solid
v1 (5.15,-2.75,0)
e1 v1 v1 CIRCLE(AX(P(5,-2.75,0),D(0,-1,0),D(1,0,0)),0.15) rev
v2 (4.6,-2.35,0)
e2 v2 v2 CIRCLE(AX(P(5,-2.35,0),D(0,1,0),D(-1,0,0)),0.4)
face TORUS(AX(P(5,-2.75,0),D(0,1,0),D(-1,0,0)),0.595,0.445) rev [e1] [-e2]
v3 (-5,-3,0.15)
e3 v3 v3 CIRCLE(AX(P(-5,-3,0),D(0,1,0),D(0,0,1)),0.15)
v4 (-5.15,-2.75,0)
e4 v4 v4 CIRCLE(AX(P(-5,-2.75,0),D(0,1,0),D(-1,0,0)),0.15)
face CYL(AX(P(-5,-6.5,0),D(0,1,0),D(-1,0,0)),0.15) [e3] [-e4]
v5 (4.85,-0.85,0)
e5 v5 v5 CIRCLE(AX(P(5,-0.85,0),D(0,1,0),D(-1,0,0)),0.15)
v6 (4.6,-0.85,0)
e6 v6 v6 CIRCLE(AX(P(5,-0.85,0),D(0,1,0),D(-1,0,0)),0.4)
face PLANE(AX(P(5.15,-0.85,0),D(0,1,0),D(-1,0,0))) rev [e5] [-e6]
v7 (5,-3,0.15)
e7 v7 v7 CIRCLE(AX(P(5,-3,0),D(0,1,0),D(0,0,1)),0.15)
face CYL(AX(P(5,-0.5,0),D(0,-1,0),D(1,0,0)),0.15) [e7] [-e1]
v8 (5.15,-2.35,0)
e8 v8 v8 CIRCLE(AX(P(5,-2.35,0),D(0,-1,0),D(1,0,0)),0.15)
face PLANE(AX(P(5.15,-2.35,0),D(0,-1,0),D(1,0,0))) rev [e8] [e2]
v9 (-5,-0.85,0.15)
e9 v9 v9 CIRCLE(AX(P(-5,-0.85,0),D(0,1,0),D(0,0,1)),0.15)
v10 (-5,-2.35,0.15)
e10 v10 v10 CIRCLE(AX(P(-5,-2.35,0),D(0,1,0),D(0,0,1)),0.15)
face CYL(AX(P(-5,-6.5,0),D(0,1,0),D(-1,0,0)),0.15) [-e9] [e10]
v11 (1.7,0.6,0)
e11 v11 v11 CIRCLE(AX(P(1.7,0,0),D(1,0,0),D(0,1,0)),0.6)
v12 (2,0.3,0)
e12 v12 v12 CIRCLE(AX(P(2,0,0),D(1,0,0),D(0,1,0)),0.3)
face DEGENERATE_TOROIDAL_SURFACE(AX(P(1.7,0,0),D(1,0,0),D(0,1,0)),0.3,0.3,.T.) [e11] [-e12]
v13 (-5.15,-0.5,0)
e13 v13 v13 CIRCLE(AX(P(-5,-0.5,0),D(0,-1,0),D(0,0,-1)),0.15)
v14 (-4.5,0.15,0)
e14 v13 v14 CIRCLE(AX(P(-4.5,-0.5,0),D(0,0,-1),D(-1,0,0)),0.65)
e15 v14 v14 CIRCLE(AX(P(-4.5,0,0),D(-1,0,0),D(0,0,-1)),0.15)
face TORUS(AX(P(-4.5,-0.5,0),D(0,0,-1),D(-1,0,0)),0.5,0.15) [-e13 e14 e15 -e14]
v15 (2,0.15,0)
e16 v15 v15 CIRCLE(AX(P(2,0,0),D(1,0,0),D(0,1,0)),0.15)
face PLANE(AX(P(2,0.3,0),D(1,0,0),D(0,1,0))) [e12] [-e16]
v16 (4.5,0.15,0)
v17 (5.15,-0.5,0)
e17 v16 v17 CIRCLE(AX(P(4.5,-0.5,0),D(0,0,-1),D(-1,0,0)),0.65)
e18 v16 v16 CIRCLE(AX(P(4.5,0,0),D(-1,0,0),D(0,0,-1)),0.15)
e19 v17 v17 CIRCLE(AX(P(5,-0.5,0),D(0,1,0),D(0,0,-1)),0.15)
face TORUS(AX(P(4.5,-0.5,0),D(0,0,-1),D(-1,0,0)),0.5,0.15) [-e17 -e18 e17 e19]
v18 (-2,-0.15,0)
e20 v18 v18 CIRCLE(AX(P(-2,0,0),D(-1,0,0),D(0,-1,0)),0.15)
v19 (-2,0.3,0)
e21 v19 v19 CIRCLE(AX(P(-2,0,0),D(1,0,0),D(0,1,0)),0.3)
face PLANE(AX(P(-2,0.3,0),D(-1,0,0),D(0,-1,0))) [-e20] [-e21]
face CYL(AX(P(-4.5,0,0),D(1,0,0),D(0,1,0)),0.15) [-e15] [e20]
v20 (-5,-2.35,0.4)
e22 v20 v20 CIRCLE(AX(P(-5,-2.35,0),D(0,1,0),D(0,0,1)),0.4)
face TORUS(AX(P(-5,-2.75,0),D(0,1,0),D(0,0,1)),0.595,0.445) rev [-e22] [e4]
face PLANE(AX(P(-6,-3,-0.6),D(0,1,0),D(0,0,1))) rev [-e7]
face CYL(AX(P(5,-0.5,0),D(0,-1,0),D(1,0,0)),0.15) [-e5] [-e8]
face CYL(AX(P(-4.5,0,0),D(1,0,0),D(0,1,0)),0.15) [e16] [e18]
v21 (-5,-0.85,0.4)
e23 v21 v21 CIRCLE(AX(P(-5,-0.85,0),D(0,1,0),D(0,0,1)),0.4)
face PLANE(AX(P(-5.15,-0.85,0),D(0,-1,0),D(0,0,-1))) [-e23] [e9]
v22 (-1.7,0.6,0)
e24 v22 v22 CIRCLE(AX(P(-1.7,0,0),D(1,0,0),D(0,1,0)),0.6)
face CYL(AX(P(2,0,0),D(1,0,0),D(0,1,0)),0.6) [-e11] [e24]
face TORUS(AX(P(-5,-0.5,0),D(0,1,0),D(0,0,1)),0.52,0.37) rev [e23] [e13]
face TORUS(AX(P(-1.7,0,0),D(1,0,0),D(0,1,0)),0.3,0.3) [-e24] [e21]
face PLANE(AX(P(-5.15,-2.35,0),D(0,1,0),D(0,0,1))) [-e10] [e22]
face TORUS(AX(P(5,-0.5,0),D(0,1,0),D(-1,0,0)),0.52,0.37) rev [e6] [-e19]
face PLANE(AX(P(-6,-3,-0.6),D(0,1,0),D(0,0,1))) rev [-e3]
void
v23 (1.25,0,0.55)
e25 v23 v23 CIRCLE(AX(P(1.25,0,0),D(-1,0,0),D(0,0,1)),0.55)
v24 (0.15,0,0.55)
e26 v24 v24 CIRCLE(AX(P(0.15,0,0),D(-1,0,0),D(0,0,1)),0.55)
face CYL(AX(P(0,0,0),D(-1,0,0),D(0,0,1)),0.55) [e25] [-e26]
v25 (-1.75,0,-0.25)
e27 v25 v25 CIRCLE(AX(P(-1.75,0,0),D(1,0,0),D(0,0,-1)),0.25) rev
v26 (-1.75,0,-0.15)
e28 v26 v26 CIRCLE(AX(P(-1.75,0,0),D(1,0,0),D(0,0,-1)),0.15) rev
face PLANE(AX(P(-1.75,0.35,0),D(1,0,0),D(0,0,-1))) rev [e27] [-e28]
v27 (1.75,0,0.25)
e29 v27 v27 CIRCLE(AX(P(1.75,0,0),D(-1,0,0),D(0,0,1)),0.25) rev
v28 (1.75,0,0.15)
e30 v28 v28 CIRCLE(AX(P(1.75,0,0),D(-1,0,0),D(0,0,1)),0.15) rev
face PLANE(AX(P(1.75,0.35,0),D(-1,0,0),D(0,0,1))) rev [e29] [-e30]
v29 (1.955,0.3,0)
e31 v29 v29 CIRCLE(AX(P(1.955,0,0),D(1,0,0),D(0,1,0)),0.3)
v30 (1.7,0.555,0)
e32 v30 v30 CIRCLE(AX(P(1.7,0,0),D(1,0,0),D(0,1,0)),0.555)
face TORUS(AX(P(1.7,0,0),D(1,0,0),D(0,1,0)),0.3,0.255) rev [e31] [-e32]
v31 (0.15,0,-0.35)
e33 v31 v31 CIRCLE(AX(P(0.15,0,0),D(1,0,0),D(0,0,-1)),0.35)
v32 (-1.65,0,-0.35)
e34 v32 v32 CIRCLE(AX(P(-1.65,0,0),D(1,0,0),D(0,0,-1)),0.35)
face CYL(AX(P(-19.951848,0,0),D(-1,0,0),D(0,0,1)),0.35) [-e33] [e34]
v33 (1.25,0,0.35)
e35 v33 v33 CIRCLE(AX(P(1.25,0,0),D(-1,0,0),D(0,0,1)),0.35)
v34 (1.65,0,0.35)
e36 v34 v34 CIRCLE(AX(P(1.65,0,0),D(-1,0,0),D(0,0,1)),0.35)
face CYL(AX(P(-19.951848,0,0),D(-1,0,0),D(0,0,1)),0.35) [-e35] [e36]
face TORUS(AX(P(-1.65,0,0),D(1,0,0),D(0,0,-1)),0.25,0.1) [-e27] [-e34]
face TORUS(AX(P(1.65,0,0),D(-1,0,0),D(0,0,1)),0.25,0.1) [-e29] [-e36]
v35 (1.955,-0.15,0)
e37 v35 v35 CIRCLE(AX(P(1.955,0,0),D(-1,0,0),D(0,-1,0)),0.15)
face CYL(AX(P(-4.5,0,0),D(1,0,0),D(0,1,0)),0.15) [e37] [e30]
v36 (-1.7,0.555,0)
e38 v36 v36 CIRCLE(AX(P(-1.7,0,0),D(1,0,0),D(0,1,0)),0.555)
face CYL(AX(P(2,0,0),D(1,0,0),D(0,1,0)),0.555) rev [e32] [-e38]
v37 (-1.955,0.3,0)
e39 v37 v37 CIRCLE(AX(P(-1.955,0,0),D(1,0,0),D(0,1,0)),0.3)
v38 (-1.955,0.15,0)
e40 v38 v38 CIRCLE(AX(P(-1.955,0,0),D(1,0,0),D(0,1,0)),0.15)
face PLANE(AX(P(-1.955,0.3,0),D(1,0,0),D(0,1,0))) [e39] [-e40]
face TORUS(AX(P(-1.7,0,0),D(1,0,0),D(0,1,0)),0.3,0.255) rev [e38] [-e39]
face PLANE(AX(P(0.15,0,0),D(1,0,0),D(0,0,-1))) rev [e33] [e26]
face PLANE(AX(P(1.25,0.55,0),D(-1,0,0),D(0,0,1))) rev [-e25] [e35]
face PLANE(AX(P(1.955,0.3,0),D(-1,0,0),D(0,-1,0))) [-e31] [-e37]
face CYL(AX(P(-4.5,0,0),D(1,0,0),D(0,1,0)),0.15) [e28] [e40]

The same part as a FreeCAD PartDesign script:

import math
import FreeCAD as App
import Part
import Sketcher
from FreeCAD import Vector


def edges_at(feature, points):
    """Names of the edges that pass closest to the given points."""
    edges = feature.Shape.Edges
    near = lambda p: min(range(len(edges)), key=lambda i: edges[i].distToShape(Part.Vertex(*p))[0])
    return sorted({f"Edge{near(p) + 1}" for p in points})

doc = App.newDocument("Part")
body = doc.addObject("PartDesign::Body", "Body")

sketch1 = body.newObject("Sketcher::SketchObject", "Sketch")
sketch1.AttachmentSupport = (doc.getObject("XY_Plane"), [""])
sketch1.MapMode = "FlatFace"
sketch1.addGeometry([
    Part.LineSegment(Vector(-1.75, 0.35, 0), Vector(-1.75, 0, 0)),
    Part.LineSegment(Vector(-1.75, 0, 0), Vector(1.75, 0, 0)),
    Part.LineSegment(Vector(1.75, 0, 0), Vector(1.75, 0.35, 0)),
    Part.LineSegment(Vector(1.75, 0.35, 0), Vector(-1.75, 0.35, 0)),
], False)
sketch1.addConstraint([
    Sketcher.Constraint("Coincident", 0, 2, 1, 1),
    Sketcher.Constraint("Coincident", 1, 2, 2, 1),
    Sketcher.Constraint("Coincident", 2, 2, 3, 1),
    Sketcher.Constraint("Coincident", 3, 2, 0, 1),
    Sketcher.Constraint("Vertical", 0),
    Sketcher.Constraint("Horizontal", 1),
    Sketcher.Constraint("Vertical", 2),
    Sketcher.Constraint("Horizontal", 3),
    Sketcher.Constraint("Symmetric", 0, 2, 1, 2, -1, 1),
    Sketcher.Constraint("DistanceX", 1, 1, 1, 2, 3.5),
    Sketcher.Constraint("DistanceY", 0, 2, 0, 1, 0.35),
])
revolution = body.newObject("PartDesign::Revolution", "Revolution")
revolution.Profile = sketch1
revolution.ReferenceAxis = (sketch1, ["H_Axis"])
revolution.Angle = 360
doc.recompute()

fillet = body.newObject("PartDesign::Fillet", "Fillet")
fillet.Base = (revolution, edges_at(revolution, [(1.75, 0, -0.35), (-1.75, 0, -0.35)]))
fillet.Radius = 0.1

sketch2 = body.newObject("Sketcher::SketchObject", "Sketch001")
sketch2.AttachmentSupport = (doc.getObject("XY_Plane"), [""])
sketch2.MapMode = "FlatFace"
sketch2.addGeometry([
    Part.LineSegment(Vector(0.1, 0.6, 0), Vector(0.1, 0, 0)),
    Part.LineSegment(Vector(0.1, 0, 0), Vector(1.2, 0, 0)),
    Part.LineSegment(Vector(1.2, 0, 0), Vector(1.2, 0.6, 0)),
    Part.LineSegment(Vector(1.2, 0.6, 0), Vector(0.1, 0.6, 0)),
], False)
sketch2.addConstraint([
    Sketcher.Constraint("Coincident", 0, 2, 1, 1),
    Sketcher.Constraint("Coincident", 1, 2, 2, 1),
    Sketcher.Constraint("Coincident", 2, 2, 3, 1),
    Sketcher.Constraint("Coincident", 3, 2, 0, 1),
    Sketcher.Constraint("Vertical", 0),
    Sketcher.Constraint("Horizontal", 1),
    Sketcher.Constraint("Vertical", 2),
    Sketcher.Constraint("Horizontal", 3),
    Sketcher.Constraint("PointOnObject", 0, 2, -1),
    Sketcher.Constraint("DistanceX", 1, 1, 1, 2, 1.1),
    Sketcher.Constraint("DistanceY", 0, 2, 0, 1, 0.55),
    Sketcher.Constraint("DistanceX", -1, 1, 0, 2, 0.15),
])
revolution2 = body.newObject("PartDesign::Revolution", "Revolution001")
revolution2.Profile = sketch2
revolution2.ReferenceAxis = (sketch2, ["H_Axis"])
revolution2.Angle = 360

sketch3 = body.newObject("Sketcher::SketchObject", "Sketch002")
sketch3.AttachmentSupport = (doc.getObject("YZ_Plane"), [""])
sketch3.MapMode = "FlatFace"
sketch3.addGeometry(Part.Circle(Vector(-7, 0, 0), Vector(0, 0, 1), 0.15), False)
sketch3.addConstraint([
    Sketcher.Constraint("PointOnObject", 0, 3, -1),
    Sketcher.Constraint("Diameter", 0, 0.3),
    Sketcher.Constraint("DistanceX", 0, 3, -1, 1, 7.0),
])

sketch4 = body.newObject("Sketcher::SketchObject", "Sketch003")
sketch4.AttachmentSupport = (doc.getObject("XY_Plane"), [""])
sketch4.MapMode = "FlatFace"
sketch4.addGeometry([
    Part.ArcOfCircle(Part.Circle(Vector(-4.5, -6.5, 0), Vector(0, 0, 1), 0.5), math.radians(180), math.radians(270)),
    Part.LineSegment(Vector(-5, -6.5, 0), Vector(-5, -0.5, 0)),
    Part.ArcOfCircle(Part.Circle(Vector(-4.5, -0.5, 0), Vector(0, 0, 1), 0.5), math.radians(90), math.radians(180)),
    Part.LineSegment(Vector(-4.5, 0, 0), Vector(4.5, 0, 0)),
    Part.ArcOfCircle(Part.Circle(Vector(4.5, -0.5, 0), Vector(0, 0, 1), 0.5), math.radians(0), math.radians(90)),
    Part.LineSegment(Vector(5, -0.5, 0), Vector(5, -6.5, 0)),
    Part.ArcOfCircle(Part.Circle(Vector(4.5, -6.5, 0), Vector(0, 0, 1), 0.5), math.radians(-90), math.radians(0)),
    Part.LineSegment(Vector(4.5, -7, 0), Vector(-4.5, -7, 0)),
], False)
sketch4.addConstraint([
    Sketcher.Constraint("Tangent", 0, 1, 1, 1),
    Sketcher.Constraint("Tangent", 1, 2, 2, 2),
    Sketcher.Constraint("Tangent", 2, 1, 3, 1),
    Sketcher.Constraint("Tangent", 3, 2, 4, 2),
    Sketcher.Constraint("Tangent", 4, 1, 5, 1),
    Sketcher.Constraint("Tangent", 5, 2, 6, 2),
    Sketcher.Constraint("Tangent", 6, 1, 7, 1),
    Sketcher.Constraint("Tangent", 7, 2, 0, 2),
    Sketcher.Constraint("Vertical", 1),
    Sketcher.Constraint("Horizontal", 3),
    Sketcher.Constraint("Vertical", 5),
    Sketcher.Constraint("Horizontal", 7),
    Sketcher.Constraint("Equal", 0, 2),
    Sketcher.Constraint("Equal", 2, 4),
    Sketcher.Constraint("Equal", 4, 6),
    Sketcher.Constraint("Symmetric", 2, 1, 3, 2, -1, 1),
    Sketcher.Constraint("Radius", 0, 0.5),
    Sketcher.Constraint("DistanceX", 3, 1, 3, 2, 9.0),
    Sketcher.Constraint("DistanceY", 1, 1, 1, 2, 6.0),
])
doc.recompute()

additivepipe = body.newObject("PartDesign::AdditivePipe", "AdditivePipe")
additivepipe.Profile = sketch3
additivepipe.Spine = (sketch4, ["Edge1", "Edge2", "Edge3", "Edge4", "Edge5", "Edge6", "Edge7", "Edge8"])

sketch5 = body.newObject("Sketcher::SketchObject", "Sketch004")
sketch5.AttachmentSupport = (doc.getObject("XY_Plane"), [""])
sketch5.MapMode = "FlatFace"
sketch5.addGeometry([
    Part.LineSegment(Vector(1.7, 0.6, 0), Vector(-1.7, 0.6, 0)),
    Part.ArcOfCircle(Part.Circle(Vector(-1.7, 0.3, 0), Vector(0, 0, 1), 0.3), math.radians(90), math.radians(180)),
    Part.LineSegment(Vector(-2, 0.3, 0), Vector(-2, 0, 0)),
    Part.LineSegment(Vector(-2, 0, 0), Vector(-1.955, 0, 0)),
    Part.LineSegment(Vector(-1.955, 0, 0), Vector(-1.955, 0.3, 0)),
    Part.ArcOfCircle(Part.Circle(Vector(-1.7, 0.3, 0), Vector(0, 0, 1), 0.255), math.radians(90), math.radians(180)),
    Part.LineSegment(Vector(-1.7, 0.555, 0), Vector(1.7, 0.555, 0)),
    Part.ArcOfCircle(Part.Circle(Vector(1.7, 0.3, 0), Vector(0, 0, 1), 0.255), math.radians(0), math.radians(90)),
    Part.LineSegment(Vector(1.955, 0.3, 0), Vector(1.955, 0, 0)),
    Part.LineSegment(Vector(1.955, 0, 0), Vector(2, 0, 0)),
    Part.LineSegment(Vector(2, 0, 0), Vector(2, 0.3, 0)),
    Part.ArcOfCircle(Part.Circle(Vector(1.7, 0.3, 0), Vector(0, 0, 1), 0.3), math.radians(0), math.radians(90)),
], False)
sketch5.addConstraint([
    Sketcher.Constraint("Tangent", 0, 2, 1, 1),
    Sketcher.Constraint("Tangent", 1, 2, 2, 1),
    Sketcher.Constraint("Coincident", 2, 2, 3, 1),
    Sketcher.Constraint("Coincident", 3, 2, 4, 1),
    Sketcher.Constraint("Tangent", 4, 2, 5, 2),
    Sketcher.Constraint("Tangent", 5, 1, 6, 1),
    Sketcher.Constraint("Tangent", 6, 2, 7, 2),
    Sketcher.Constraint("Tangent", 7, 1, 8, 1),
    Sketcher.Constraint("Coincident", 8, 2, 9, 1),
    Sketcher.Constraint("Coincident", 9, 2, 10, 1),
    Sketcher.Constraint("Tangent", 10, 2, 11, 1),
    Sketcher.Constraint("Tangent", 11, 2, 0, 1),
    Sketcher.Constraint("Horizontal", 0),
    Sketcher.Constraint("Vertical", 2),
    Sketcher.Constraint("Horizontal", 3),
    Sketcher.Constraint("Vertical", 4),
    Sketcher.Constraint("Horizontal", 6),
    Sketcher.Constraint("Vertical", 8),
    Sketcher.Constraint("Horizontal", 9),
    Sketcher.Constraint("Vertical", 10),
    Sketcher.Constraint("Coincident", 5, 3, 1, 3),
    Sketcher.Constraint("Coincident", 11, 3, 7, 3),
    Sketcher.Constraint("Equal", 5, 7),
    Sketcher.Constraint("Symmetric", 3, 2, 8, 2, -1, 1),
    Sketcher.Constraint("PointOnObject", 2, 2, -1),
    Sketcher.Constraint("Radius", 1, 0.3),
    Sketcher.Constraint("DistanceX", 0, 2, 0, 1, 3.4),
    Sketcher.Constraint("DistanceY", 2, 2, 2, 1, 0.3),
    Sketcher.Constraint("Radius", 5, 0.255),
])
revolution3 = body.newObject("PartDesign::Revolution", "Revolution002")
revolution3.Profile = sketch5
revolution3.ReferenceAxis = (sketch5, ["H_Axis"])
revolution3.Angle = 360

sketch6 = body.newObject("Sketcher::SketchObject", "Sketch005")
sketch6.AttachmentSupport = (doc.getObject("XY_Plane"), [""])
sketch6.MapMode = "FlatFace"
sketch6.addGeometry([
    Part.LineSegment(Vector(-6, -3, 0), Vector(-6, -8, 0)),
    Part.LineSegment(Vector(-6, -8, 0), Vector(6, -8, 0)),
    Part.LineSegment(Vector(6, -8, 0), Vector(6, -3, 0)),
    Part.LineSegment(Vector(6, -3, 0), Vector(-6, -3, 0)),
], False)
sketch6.addConstraint([
    Sketcher.Constraint("Coincident", 0, 2, 1, 1),
    Sketcher.Constraint("Coincident", 1, 2, 2, 1),
    Sketcher.Constraint("Coincident", 2, 2, 3, 1),
    Sketcher.Constraint("Coincident", 3, 2, 0, 1),
    Sketcher.Constraint("Vertical", 0),
    Sketcher.Constraint("Horizontal", 1),
    Sketcher.Constraint("Vertical", 2),
    Sketcher.Constraint("Horizontal", 3),
    Sketcher.Constraint("DistanceX", 1, 1, 1, 2, 12.0),
    Sketcher.Constraint("DistanceY", 0, 2, 0, 1, 5.0),
    Sketcher.Constraint("DistanceX", 0, 2, -1, 1, 6.0),
    Sketcher.Constraint("DistanceY", 0, 2, -1, 1, 8.0),
])
pocket1 = body.newObject("PartDesign::Pocket", "Pocket")
pocket1.Profile = sketch6
pocket1.Type = "ThroughAll"
pocket1.Midplane = True

sketch7 = body.newObject("Sketcher::SketchObject", "Sketch006")
sketch7.AttachmentSupport = (doc.getObject("XY_Plane"), [""])
sketch7.MapMode = "FlatFace"
sketch7.addGeometry([
    Part.LineSegment(Vector(-5.4, -0.85, 0), Vector(-5.15, -0.85, 0)),
    Part.LineSegment(Vector(-5.15, -0.85, 0), Vector(-5.15, -0.5, 0)),
    Part.ArcOfCircle(Part.Circle(Vector(-5.52, -0.5, 0), Vector(0, 0, 1), 0.37), math.radians(-71), math.radians(0)),
    Part.LineSegment(Vector(-5.15, -2.75, 0), Vector(-5.15, -2.35, 0)),
    Part.LineSegment(Vector(-5.15, -2.35, 0), Vector(-5.4, -2.35, 0)),
    Part.ArcOfCircle(Part.Circle(Vector(-5.6, -2.75, 0), Vector(0, 0, 1), 0.45), math.radians(0), math.radians(64)),
], False)
sketch7.addGeometry(Part.LineSegment(Vector(-5, -0.5, 0), Vector(-5, -2.75, 0)), True)
sketch7.addConstraint([
    Sketcher.Constraint("Coincident", 0, 2, 1, 1),
    Sketcher.Constraint("Tangent", 1, 2, 2, 2),
    Sketcher.Constraint("Coincident", 2, 1, 0, 1),
    Sketcher.Constraint("Coincident", 3, 2, 4, 1),
    Sketcher.Constraint("Coincident", 4, 2, 5, 2),
    Sketcher.Constraint("Tangent", 5, 1, 3, 1),
    Sketcher.Constraint("Horizontal", 0),
    Sketcher.Constraint("Vertical", 1),
    Sketcher.Constraint("Vertical", 3),
    Sketcher.Constraint("Horizontal", 4),
    Sketcher.Constraint("Vertical", 6),
    Sketcher.Constraint("Horizontal", 1, 2, 6, 1),
    Sketcher.Constraint("Horizontal", 5, 1, 6, 2),
    Sketcher.Constraint("Vertical", 1, 2, 3, 2),
    Sketcher.Constraint("Vertical", 2, 1, 4, 2),
    Sketcher.Constraint("Radius", 2, 0.37),
    Sketcher.Constraint("DistanceY", 3, 1, 3, 2, 0.4),
    Sketcher.Constraint("DistanceX", 6, 1, -1, 1, 5.0),
    Sketcher.Constraint("Radius", 5, 0.445),
    Sketcher.Constraint("DistanceY", 6, 2, 6, 1, 2.25),
    Sketcher.Constraint("DistanceY", 2, 3, -1, 1, 0.5),
    Sketcher.Constraint("DistanceX", 2, 1, -1, 1, 5.4),
])
revolution4 = body.newObject("PartDesign::Revolution", "Revolution003")
revolution4.Profile = sketch7
revolution4.ReferenceAxis = (sketch7, ["Axis0"])
revolution4.Angle = 360

sketch8 = body.newObject("Sketcher::SketchObject", "Sketch007")
sketch8.AttachmentSupport = (doc.getObject("XY_Plane"), [""])
sketch8.MapMode = "FlatFace"
sketch8.addGeometry([
    Part.LineSegment(Vector(5.15, -0.85, 0), Vector(5.4, -0.85, 0)),
    Part.ArcOfCircle(Part.Circle(Vector(5.52, -0.5, 0), Vector(0, 0, 1), 0.37), math.radians(180), math.radians(251)),
    Part.LineSegment(Vector(5.15, -0.5, 0), Vector(5.15, -0.85, 0)),
    Part.LineSegment(Vector(5.4, -2.35, 0), Vector(5.15, -2.35, 0)),
    Part.LineSegment(Vector(5.15, -2.35, 0), Vector(5.15, -2.75, 0)),
    Part.ArcOfCircle(Part.Circle(Vector(5.6, -2.75, 0), Vector(0, 0, 1), 0.45), math.radians(116), math.radians(180)),
], False)
sketch8.addGeometry(Part.LineSegment(Vector(5, -0.5, 0), Vector(5, -2.75, 0)), True)
sketch8.addConstraint([
    Sketcher.Constraint("Coincident", 0, 2, 1, 2),
    Sketcher.Constraint("Tangent", 1, 1, 2, 1),
    Sketcher.Constraint("Coincident", 2, 2, 0, 1),
    Sketcher.Constraint("Coincident", 3, 2, 4, 1),
    Sketcher.Constraint("Tangent", 4, 2, 5, 2),
    Sketcher.Constraint("Coincident", 5, 1, 3, 1),
    Sketcher.Constraint("Horizontal", 0),
    Sketcher.Constraint("Vertical", 2),
    Sketcher.Constraint("Horizontal", 3),
    Sketcher.Constraint("Vertical", 4),
    Sketcher.Constraint("Vertical", 6),
    Sketcher.Constraint("Horizontal", 1, 1, 6, 1),
    Sketcher.Constraint("Horizontal", 4, 2, 6, 2),
    Sketcher.Constraint("Vertical", 2, 2, 3, 2),
    Sketcher.Constraint("Vertical", 0, 2, 5, 1),
    Sketcher.Constraint("Radius", 1, 0.37),
    Sketcher.Constraint("DistanceY", 4, 2, 4, 1, 0.4),
    Sketcher.Constraint("DistanceX", -1, 1, 6, 1, 5.0),
    Sketcher.Constraint("Radius", 5, 0.445),
    Sketcher.Constraint("DistanceY", 6, 2, 6, 1, 2.25),
    Sketcher.Constraint("DistanceY", 1, 3, -1, 1, 0.5),
    Sketcher.Constraint("DistanceX", -1, 1, 0, 2, 5.4),
])
revolution5 = body.newObject("PartDesign::Revolution", "Revolution004")
revolution5.Profile = sketch8
revolution5.ReferenceAxis = (sketch8, ["Axis0"])
revolution5.Angle = 360

doc.recompute()
